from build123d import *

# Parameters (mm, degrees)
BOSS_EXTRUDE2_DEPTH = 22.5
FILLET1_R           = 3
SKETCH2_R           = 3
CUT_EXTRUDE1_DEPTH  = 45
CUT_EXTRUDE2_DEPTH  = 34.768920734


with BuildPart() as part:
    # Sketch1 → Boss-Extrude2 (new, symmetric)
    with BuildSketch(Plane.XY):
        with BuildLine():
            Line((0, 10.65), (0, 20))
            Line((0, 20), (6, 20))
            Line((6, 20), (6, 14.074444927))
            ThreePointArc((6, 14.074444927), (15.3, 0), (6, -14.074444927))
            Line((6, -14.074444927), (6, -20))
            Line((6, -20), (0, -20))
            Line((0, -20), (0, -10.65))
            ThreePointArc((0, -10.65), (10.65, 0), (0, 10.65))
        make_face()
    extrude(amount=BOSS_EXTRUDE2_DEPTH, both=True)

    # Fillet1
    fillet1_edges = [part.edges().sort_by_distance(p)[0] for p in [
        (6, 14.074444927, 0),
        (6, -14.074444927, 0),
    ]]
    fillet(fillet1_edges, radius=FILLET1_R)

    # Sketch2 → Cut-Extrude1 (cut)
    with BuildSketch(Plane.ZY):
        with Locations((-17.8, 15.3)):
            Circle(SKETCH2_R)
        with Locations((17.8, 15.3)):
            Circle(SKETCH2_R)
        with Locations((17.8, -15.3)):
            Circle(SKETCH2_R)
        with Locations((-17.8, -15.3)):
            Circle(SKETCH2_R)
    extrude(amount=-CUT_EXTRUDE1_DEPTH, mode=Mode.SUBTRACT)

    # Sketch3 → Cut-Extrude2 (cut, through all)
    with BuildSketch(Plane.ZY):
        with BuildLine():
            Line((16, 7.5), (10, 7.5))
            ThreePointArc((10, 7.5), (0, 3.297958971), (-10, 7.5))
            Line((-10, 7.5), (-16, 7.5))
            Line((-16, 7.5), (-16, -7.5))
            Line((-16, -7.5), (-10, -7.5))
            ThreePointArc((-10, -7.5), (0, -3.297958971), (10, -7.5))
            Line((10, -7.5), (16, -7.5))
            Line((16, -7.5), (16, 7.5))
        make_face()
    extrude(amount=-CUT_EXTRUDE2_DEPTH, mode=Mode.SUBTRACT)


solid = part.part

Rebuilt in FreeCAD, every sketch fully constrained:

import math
import FreeCAD as App
import Part
import Sketcher
Q = App.Units.Quantity


def edges_at(feature, points):
    """Names of the edges that pass closest to the given points."""
    edges = feature.Shape.Edges
    near = lambda p: min(range(len(edges)), key=lambda i: edges[i].distToShape(Part.Vertex(*p))[0])
    return sorted({f"Edge{near(p) + 1}" for p in points})

doc = App.newDocument("Part")
params = doc.addObject("Spreadsheet::Sheet", "Params")
for row, (alias, value) in enumerate([
    ("sketch1_radius", "15.3 mm"),
    ("sketch1_width", "6 mm"),
    ("sketch1_radius2", "10.65 mm"),
    ("pad1_length", "45 mm"),
    ("fillet_radius", "3 mm"),
    ("sketch2_diameter", "6 mm"),
    ("pocket1_length", "45 mm"),
    ("sketch3_radius", "14 mm"),
    ("sketch3_width", "15 mm"),
    ("sketch3_height", "6 mm"),
], start=1):
    params.set(f"A{row}", alias)
    params.set(f"B{row}", "=" + value)
    params.setAlias(f"B{row}", alias)

body = doc.addObject("PartDesign::Body", "Body")

# Sketch on XY plane
sketch1 = body.newObject("Sketcher::SketchObject", "Sketch")
sketch1.AttachmentSupport = (doc.getObject("XY_Plane"), [""])
sketch1.MapMode = "FlatFace"
sketch1.addGeometry([
    Part.LineSegment(App.Vector(0, 20, 0), App.Vector(0, 11, 0)),  # 0
    Part.ArcOfCircle(Part.Circle(App.Vector(0, 0, 0), App.Vector(0, 0, 1), 11), math.radians(-90), math.radians(90)),  # 1
    Part.LineSegment(App.Vector(0, -11, 0), App.Vector(0, -20, 0)),  # 2
    Part.LineSegment(App.Vector(0, -20, 0), App.Vector(6, -20, 0)),  # 3
    Part.LineSegment(App.Vector(6, -20, 0), App.Vector(6, -14, 0)),  # 4
    Part.ArcOfCircle(Part.Circle(App.Vector(0, 0, 0), App.Vector(0, 0, 1), 15), math.radians(-67), math.radians(67)),  # 5
    Part.LineSegment(App.Vector(6, 14, 0), App.Vector(6, 20, 0)),  # 6
    Part.LineSegment(App.Vector(6, 20, 0), App.Vector(0, 20, 0)),  # 7
], False)
sketch1.addConstraint([
    Sketcher.Constraint("Coincident", 0, 2, 1, 2),
    Sketcher.Constraint("Coincident", 1, 1, 2, 1),
    Sketcher.Constraint("Coincident", 2, 2, 3, 1),
    Sketcher.Constraint("Coincident", 3, 2, 4, 1),
    Sketcher.Constraint("Coincident", 4, 2, 5, 1),
    Sketcher.Constraint("Coincident", 5, 2, 6, 1),
    Sketcher.Constraint("Coincident", 6, 2, 7, 1),
    Sketcher.Constraint("Coincident", 7, 2, 0, 1),
    Sketcher.Constraint("Vertical", 0),
    Sketcher.Constraint("Vertical", 2),
    Sketcher.Constraint("Horizontal", 3),
    Sketcher.Constraint("Vertical", 4),
    Sketcher.Constraint("Vertical", 6),
    Sketcher.Constraint("Horizontal", 7),
    Sketcher.Constraint("Coincident", 1, 3, -1, 1),
    Sketcher.Constraint("Coincident", 5, 3, -1, 1),
    Sketcher.Constraint("Symmetric", 2, 2, 7, 2, -1, 1),
    Sketcher.Constraint("PointOnObject", 0, 2, -2),
    Sketcher.Constraint("Vertical", 4, 2, 5, 2),
    Sketcher.Constraint("Radius", 5, Q("15.3 mm")),
    Sketcher.Constraint("DistanceX", 3, 1, 3, 2, Q("6 mm")),
    Sketcher.Constraint("Radius", 1, Q("10.65 mm")),
    Sketcher.Constraint("DistanceY", 2, 2, -1, 1, Q("20 mm")),
])
sketch1.setExpression("Constraints[19]", "Params.sketch1_radius")
sketch1.setExpression("Constraints[20]", "Params.sketch1_width")
sketch1.setExpression("Constraints[21]", "Params.sketch1_radius2")
pad1 = body.newObject("PartDesign::Pad", "Pad")
pad1.Profile = sketch1
pad1.setExpression("Length", "Params.pad1_length")
pad1.Midplane = True
doc.recompute()

fillet = body.newObject("PartDesign::Fillet", "Fillet")
fillet.Base = (pad1, edges_at(pad1, [(6, 14.074, 0), (6, -14.074, 0)]))
fillet.setExpression("Radius", "Params.fillet_radius")

# Sketch on YZ plane
sketch2 = body.newObject("Sketcher::SketchObject", "Sketch001")
sketch2.AttachmentSupport = (doc.getObject("YZ_Plane"), [""])
sketch2.MapMode = "FlatFace"
sketch2.addGeometry([
    Part.Circle(App.Vector(15.3, -17.8, 0), App.Vector(0, 0, 1), 3),
    Part.Circle(App.Vector(15.3, 17.8, 0), App.Vector(0, 0, 1), 3),
    Part.Circle(App.Vector(-15.3, 17.8, 0), App.Vector(0, 0, 1), 3),
    Part.Circle(App.Vector(-15.3, -17.8, 0), App.Vector(0, 0, 1), 3),
], False)
sketch2.addConstraint([
    Sketcher.Constraint("Equal", 0, 1),
    Sketcher.Constraint("Equal", 1, 2),
    Sketcher.Constraint("Equal", 2, 3),
    Sketcher.Constraint("Symmetric", 0, 3, 2, 3, -1, 1),
    Sketcher.Constraint("Symmetric", 1, 3, 3, 3, -1, 1),
    Sketcher.Constraint("Symmetric", 1, 3, 2, 3, -2),
    Sketcher.Constraint("Diameter", 0, Q("6 mm")),
    Sketcher.Constraint("DistanceX", -1, 1, 0, 3, Q("15.3 mm")),
    Sketcher.Constraint("DistanceY", 0, 3, -1, 1, Q("17.8 mm")),
])
sketch2.setExpression("Constraints[6]", "Params.sketch2_diameter")
pocket1 = body.newObject("PartDesign::Pocket", "Pocket")
pocket1.Profile = sketch2
pocket1.setExpression("Length", "Params.pocket1_length")
pocket1.Reversed = True

# Sketch on YZ plane
sketch3 = body.newObject("Sketcher::SketchObject", "Sketch002")
sketch3.AttachmentSupport = (doc.getObject("YZ_Plane"), [""])
sketch3.MapMode = "FlatFace"
sketch3.addGeometry([
    Part.LineSegment(App.Vector(8, 16, 0), App.Vector(8, 10, 0)),  # 0
    Part.ArcOfCircle(Part.Circle(App.Vector(17, 0, 0), App.Vector(0, 0, 1), 14), math.radians(134), math.radians(226)),  # 1
    Part.LineSegment(App.Vector(8, -10, 0), App.Vector(8, -16, 0)),  # 2
    Part.LineSegment(App.Vector(8, -16, 0), App.Vector(-8, -16, 0)),  # 3
    Part.LineSegment(App.Vector(-8, -16, 0), App.Vector(-8, -10, 0)),  # 4
    Part.ArcOfCircle(Part.Circle(App.Vector(-17, 0, 0), App.Vector(0, 0, 1), 14), math.radians(-46), math.radians(46)),  # 5
    Part.LineSegment(App.Vector(-8, 10, 0), App.Vector(-8, 16, 0)),  # 6
    Part.LineSegment(App.Vector(-8, 16, 0), App.Vector(8, 16, 0)),  # 7
], False)
sketch3.addConstraint([
    Sketcher.Constraint("Coincident", 0, 2, 1, 1),
    Sketcher.Constraint("Coincident", 1, 2, 2, 1),
    Sketcher.Constraint("Coincident", 2, 2, 3, 1),
    Sketcher.Constraint("Coincident", 3, 2, 4, 1),
    Sketcher.Constraint("Coincident", 4, 2, 5, 1),
    Sketcher.Constraint("Coincident", 5, 2, 6, 1),
    Sketcher.Constraint("Coincident", 6, 2, 7, 1),
    Sketcher.Constraint("Coincident", 7, 2, 0, 1),
    Sketcher.Constraint("Vertical", 0),
    Sketcher.Constraint("Vertical", 2),
    Sketcher.Constraint("Horizontal", 3),
    Sketcher.Constraint("Vertical", 4),
    Sketcher.Constraint("Vertical", 6),
    Sketcher.Constraint("Horizontal", 7),
    Sketcher.Constraint("Equal", 1, 5),
    Sketcher.Constraint("Symmetric", 1, 3, 5, 3, -1, 1),
    Sketcher.Constraint("Symmetric", 2, 2, 6, 2, -1, 1),
    Sketcher.Constraint("Symmetric", 1, 2, 4, 2, -2),
    Sketcher.Constraint("Horizontal", 0, 2, 5, 2),
    Sketcher.Constraint("Radius", 1, Q("14 mm")),
    Sketcher.Constraint("DistanceX", 3, 2, 3, 1, Q("15 mm")),
    Sketcher.Constraint("DistanceY", 0, 2, 0, 1, Q("6 mm")),
    Sketcher.Constraint("DistanceY", -1, 1, 0, 2, Q("10 mm")),
])
sketch3.setExpression("Constraints[19]", "Params.sketch3_radius")
sketch3.setExpression("Constraints[20]", "Params.sketch3_width")
sketch3.setExpression("Constraints[21]", "Params.sketch3_height")
pocket2 = body.newObject("PartDesign::Pocket", "Pocket001")
pocket2.Profile = sketch3
pocket2.Type = "ThroughAll"
pocket2.Reversed = True

doc.recompute()
